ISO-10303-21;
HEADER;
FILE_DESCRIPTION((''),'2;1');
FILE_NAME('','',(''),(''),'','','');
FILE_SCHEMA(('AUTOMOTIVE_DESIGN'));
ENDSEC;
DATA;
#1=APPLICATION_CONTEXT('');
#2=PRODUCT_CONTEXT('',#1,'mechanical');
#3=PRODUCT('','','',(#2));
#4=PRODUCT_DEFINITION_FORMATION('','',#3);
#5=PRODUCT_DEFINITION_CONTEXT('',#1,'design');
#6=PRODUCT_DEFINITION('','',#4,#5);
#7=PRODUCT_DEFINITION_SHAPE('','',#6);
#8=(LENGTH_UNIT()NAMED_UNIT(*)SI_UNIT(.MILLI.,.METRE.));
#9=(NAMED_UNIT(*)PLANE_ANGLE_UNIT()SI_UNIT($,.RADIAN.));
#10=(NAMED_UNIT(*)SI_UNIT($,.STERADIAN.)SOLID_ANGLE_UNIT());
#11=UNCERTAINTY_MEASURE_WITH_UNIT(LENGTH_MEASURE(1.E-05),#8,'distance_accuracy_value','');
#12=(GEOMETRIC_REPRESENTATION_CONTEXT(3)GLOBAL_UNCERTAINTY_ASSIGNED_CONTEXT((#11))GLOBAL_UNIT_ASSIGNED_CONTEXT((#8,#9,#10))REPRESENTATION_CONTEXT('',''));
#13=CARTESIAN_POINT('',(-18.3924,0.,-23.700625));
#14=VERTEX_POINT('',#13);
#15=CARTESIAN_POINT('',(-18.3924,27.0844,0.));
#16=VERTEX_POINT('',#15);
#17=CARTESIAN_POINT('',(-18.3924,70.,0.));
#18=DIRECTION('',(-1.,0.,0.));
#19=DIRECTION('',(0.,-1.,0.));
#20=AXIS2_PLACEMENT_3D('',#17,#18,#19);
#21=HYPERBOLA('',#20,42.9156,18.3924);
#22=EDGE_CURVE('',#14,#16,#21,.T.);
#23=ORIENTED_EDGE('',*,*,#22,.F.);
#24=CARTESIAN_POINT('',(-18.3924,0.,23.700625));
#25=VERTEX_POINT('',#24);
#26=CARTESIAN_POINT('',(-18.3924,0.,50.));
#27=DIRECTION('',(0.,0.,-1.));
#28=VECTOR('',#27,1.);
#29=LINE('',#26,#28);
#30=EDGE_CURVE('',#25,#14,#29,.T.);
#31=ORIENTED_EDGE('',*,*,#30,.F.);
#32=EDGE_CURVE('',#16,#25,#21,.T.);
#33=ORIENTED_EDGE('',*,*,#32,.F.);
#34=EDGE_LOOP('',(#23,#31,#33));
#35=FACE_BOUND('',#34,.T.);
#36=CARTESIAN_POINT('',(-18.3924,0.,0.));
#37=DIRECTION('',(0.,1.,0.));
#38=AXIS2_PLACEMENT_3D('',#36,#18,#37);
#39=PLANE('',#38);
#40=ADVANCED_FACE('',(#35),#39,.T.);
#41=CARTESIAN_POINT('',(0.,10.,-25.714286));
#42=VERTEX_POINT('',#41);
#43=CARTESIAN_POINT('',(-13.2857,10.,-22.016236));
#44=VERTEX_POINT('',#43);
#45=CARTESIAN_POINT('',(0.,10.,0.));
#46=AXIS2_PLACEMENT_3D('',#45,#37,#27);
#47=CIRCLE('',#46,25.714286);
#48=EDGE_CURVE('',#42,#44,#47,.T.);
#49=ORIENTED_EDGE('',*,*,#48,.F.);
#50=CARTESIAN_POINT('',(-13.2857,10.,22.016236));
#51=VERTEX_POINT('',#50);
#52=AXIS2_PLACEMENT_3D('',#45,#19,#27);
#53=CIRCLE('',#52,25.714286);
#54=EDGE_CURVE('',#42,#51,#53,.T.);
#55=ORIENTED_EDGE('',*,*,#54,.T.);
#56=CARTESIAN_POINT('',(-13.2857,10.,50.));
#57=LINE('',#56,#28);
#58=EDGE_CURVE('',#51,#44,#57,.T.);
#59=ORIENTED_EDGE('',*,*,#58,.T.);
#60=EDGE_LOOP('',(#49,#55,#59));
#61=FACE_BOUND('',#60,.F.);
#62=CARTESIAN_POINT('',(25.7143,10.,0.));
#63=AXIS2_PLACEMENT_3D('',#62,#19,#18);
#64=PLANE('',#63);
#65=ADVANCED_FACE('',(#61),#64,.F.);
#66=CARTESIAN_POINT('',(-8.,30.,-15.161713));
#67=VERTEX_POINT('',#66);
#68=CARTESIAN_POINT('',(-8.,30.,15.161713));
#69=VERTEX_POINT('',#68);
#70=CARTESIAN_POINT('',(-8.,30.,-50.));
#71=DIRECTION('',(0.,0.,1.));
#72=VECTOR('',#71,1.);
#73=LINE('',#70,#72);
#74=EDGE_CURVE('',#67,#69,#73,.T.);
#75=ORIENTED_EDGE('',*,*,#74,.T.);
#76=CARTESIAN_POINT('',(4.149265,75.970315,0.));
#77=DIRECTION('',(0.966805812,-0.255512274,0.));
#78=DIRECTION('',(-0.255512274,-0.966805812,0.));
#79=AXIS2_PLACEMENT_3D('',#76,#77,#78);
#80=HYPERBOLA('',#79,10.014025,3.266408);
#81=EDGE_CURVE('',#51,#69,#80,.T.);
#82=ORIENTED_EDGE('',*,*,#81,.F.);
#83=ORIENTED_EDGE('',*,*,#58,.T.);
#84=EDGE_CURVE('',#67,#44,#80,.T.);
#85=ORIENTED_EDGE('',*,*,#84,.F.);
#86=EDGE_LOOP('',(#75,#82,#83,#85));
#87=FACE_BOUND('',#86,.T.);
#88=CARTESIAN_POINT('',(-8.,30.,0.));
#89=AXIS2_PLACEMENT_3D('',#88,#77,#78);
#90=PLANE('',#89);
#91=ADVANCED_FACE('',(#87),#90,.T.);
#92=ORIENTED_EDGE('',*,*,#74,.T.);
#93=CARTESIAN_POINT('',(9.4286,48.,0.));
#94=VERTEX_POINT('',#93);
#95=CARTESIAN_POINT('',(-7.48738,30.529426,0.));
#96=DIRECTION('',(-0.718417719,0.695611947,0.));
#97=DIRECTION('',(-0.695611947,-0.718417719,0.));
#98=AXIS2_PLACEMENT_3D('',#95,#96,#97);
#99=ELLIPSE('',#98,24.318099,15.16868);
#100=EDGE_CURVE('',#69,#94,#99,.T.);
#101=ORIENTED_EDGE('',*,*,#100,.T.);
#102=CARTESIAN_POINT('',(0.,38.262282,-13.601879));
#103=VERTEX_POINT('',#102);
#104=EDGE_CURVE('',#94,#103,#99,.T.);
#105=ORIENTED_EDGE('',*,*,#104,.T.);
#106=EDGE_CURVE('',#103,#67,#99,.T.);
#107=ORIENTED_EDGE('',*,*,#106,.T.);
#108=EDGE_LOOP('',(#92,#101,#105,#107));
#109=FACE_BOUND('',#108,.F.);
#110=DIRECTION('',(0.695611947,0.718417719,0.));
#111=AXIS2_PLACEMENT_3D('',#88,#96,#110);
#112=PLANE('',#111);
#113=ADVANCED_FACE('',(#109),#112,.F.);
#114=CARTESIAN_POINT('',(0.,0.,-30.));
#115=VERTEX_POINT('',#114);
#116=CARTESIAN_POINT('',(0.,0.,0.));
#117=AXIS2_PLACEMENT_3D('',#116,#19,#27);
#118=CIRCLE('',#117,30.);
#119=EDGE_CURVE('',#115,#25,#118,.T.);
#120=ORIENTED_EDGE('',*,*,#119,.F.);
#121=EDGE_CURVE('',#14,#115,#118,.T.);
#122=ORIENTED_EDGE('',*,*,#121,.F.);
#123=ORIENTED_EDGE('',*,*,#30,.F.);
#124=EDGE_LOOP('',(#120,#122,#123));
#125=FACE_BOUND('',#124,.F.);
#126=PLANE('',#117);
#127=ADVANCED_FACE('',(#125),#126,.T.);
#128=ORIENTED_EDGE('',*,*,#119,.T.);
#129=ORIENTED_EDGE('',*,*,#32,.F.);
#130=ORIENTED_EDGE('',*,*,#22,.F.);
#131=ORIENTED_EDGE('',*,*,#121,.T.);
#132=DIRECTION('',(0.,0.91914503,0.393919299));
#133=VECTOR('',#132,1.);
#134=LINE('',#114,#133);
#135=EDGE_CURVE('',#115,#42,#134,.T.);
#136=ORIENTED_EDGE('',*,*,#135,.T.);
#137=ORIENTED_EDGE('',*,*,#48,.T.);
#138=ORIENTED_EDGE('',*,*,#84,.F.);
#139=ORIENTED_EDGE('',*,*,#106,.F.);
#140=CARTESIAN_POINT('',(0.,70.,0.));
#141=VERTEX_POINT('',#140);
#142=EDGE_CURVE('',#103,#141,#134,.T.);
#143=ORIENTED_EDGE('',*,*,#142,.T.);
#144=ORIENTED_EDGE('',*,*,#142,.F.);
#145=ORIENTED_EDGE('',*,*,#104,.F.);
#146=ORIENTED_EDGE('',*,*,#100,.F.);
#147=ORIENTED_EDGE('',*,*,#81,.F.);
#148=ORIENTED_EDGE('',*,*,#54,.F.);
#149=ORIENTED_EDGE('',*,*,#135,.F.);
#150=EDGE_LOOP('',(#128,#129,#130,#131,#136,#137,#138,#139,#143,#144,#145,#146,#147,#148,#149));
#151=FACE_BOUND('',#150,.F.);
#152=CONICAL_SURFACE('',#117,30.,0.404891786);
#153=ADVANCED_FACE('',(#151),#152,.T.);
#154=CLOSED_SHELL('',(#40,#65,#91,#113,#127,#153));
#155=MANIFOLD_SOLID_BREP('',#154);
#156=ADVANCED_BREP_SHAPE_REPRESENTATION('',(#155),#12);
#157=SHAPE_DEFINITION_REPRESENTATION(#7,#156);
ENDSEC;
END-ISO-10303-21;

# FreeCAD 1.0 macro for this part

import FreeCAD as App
import Part
import Sketcher

V = App.Vector


def add_polygon(sketch, points):
    """Adds a closed chain of lines whose ends are joined by coincident constraints."""
    first, n = sketch.GeometryCount, len(points)
    for a, b in zip(points, points[1:] + points[:1]):
        sketch.addGeometry(Part.LineSegment(App.Vector(*a, 0), App.Vector(*b, 0)), False)
    for i in range(n):
        sketch.addConstraint(Sketcher.Constraint("Coincident", first + i, 2, first + (i + 1) % n, 1))

doc = App.newDocument("Part")
params = doc.addObject("Spreadsheet::Sheet", "Params")
for row, (alias, value) in enumerate([
    ("sketch1_width", "70 mm"),
    ("sketch1_height", "30 mm"),
    ("revolution_angle", "360 deg"),
    ("sketch2_width", "39 mm"),
    ("pocket1_length", "100 mm"),
], start=1):
    params.set(f"A{row}", alias)
    params.set(f"B{row}", "=" + value)
    params.setAlias(f"B{row}", alias)

body = doc.addObject("PartDesign::Body", "Body")

sketch1 = doc.addObject("Sketcher::SketchObject", "Sketch")
body.addObject(sketch1)
sketch1.AttachmentSupport = (doc.YZ_Plane, [""])
sketch1.MapMode = "FlatFace"
add_polygon(sketch1, [(0, -30), (70, 0), (0, 0)])
sketch1.addConstraint([
    Sketcher.Constraint("Horizontal", 1),
    Sketcher.Constraint("Vertical", 2),
    Sketcher.Constraint("Coincident", 1, 2, -1, 1),
    Sketcher.Constraint("DistanceX", 1, 2, 1, 1, 70.0),
    Sketcher.Constraint("DistanceY", 2, 2, 2, 1, 30.0),
])
sketch1.setExpression("Constraints[6]", "Params.sketch1_width")
sketch1.setExpression("Constraints[7]", "Params.sketch1_height")
revolution = doc.addObject("PartDesign::Revolution", "Revolution")
body.addObject(revolution)
revolution.Profile = sketch1
revolution.ReferenceAxis = (sketch1, ["H_Axis"])
revolution.setExpression("Angle", "Params.revolution_angle")

sketch2 = doc.addObject("Sketcher::SketchObject", "Sketch001")
body.addObject(sketch2)
sketch2.AttachmentSupport = (doc.XY_Plane, [""])
sketch2.MapMode = "FlatFace"
add_polygon(sketch2, [(26, 10), (9, 48), (-8, 30), (-13, 10)])
add_polygon(sketch2, [(-18, 0), (-18, 27), (-30, 0)])
sketch2.addConstraint([
    Sketcher.Constraint("Horizontal", 3),
    Sketcher.Constraint("Vertical", 4),
    Sketcher.Constraint("Horizontal", 6),
    Sketcher.Constraint("PointOnObject", 5, 2, -1),
    Sketcher.Constraint("DistanceX", 3, 1, 3, 2, 39.0),
    Sketcher.Constraint("DistanceY", -1, 1, 0, 2, 48.0),
    Sketcher.Constraint("DistanceX", 1, 2, -1, 1, 8.0),
    Sketcher.Constraint("DistanceY", -1, 1, 1, 2, 30.0),
    Sketcher.Constraint("DistanceY", -1, 1, 2, 2, 10.0),
    Sketcher.Constraint("DistanceX", 5, 2, -1, 1, 30.0),
    Sketcher.Constraint("Distance", 1, 25.055),
    Sketcher.Constraint("Distance", 5, 29.467),
    Sketcher.Constraint("DistanceX", 6, 1, 6, 2, 11.6076),
    Sketcher.Constraint("Distance", 0, 41.3428),
])
sketch2.setExpression("Constraints[11]", "Params.sketch2_width")
pocket1 = doc.addObject("PartDesign::Pocket", "Pocket")
body.addObject(pocket1)
pocket1.Profile = sketch2
pocket1.setExpression("Length", "Params.pocket1_length")
pocket1.Midplane = True

doc.recompute()
